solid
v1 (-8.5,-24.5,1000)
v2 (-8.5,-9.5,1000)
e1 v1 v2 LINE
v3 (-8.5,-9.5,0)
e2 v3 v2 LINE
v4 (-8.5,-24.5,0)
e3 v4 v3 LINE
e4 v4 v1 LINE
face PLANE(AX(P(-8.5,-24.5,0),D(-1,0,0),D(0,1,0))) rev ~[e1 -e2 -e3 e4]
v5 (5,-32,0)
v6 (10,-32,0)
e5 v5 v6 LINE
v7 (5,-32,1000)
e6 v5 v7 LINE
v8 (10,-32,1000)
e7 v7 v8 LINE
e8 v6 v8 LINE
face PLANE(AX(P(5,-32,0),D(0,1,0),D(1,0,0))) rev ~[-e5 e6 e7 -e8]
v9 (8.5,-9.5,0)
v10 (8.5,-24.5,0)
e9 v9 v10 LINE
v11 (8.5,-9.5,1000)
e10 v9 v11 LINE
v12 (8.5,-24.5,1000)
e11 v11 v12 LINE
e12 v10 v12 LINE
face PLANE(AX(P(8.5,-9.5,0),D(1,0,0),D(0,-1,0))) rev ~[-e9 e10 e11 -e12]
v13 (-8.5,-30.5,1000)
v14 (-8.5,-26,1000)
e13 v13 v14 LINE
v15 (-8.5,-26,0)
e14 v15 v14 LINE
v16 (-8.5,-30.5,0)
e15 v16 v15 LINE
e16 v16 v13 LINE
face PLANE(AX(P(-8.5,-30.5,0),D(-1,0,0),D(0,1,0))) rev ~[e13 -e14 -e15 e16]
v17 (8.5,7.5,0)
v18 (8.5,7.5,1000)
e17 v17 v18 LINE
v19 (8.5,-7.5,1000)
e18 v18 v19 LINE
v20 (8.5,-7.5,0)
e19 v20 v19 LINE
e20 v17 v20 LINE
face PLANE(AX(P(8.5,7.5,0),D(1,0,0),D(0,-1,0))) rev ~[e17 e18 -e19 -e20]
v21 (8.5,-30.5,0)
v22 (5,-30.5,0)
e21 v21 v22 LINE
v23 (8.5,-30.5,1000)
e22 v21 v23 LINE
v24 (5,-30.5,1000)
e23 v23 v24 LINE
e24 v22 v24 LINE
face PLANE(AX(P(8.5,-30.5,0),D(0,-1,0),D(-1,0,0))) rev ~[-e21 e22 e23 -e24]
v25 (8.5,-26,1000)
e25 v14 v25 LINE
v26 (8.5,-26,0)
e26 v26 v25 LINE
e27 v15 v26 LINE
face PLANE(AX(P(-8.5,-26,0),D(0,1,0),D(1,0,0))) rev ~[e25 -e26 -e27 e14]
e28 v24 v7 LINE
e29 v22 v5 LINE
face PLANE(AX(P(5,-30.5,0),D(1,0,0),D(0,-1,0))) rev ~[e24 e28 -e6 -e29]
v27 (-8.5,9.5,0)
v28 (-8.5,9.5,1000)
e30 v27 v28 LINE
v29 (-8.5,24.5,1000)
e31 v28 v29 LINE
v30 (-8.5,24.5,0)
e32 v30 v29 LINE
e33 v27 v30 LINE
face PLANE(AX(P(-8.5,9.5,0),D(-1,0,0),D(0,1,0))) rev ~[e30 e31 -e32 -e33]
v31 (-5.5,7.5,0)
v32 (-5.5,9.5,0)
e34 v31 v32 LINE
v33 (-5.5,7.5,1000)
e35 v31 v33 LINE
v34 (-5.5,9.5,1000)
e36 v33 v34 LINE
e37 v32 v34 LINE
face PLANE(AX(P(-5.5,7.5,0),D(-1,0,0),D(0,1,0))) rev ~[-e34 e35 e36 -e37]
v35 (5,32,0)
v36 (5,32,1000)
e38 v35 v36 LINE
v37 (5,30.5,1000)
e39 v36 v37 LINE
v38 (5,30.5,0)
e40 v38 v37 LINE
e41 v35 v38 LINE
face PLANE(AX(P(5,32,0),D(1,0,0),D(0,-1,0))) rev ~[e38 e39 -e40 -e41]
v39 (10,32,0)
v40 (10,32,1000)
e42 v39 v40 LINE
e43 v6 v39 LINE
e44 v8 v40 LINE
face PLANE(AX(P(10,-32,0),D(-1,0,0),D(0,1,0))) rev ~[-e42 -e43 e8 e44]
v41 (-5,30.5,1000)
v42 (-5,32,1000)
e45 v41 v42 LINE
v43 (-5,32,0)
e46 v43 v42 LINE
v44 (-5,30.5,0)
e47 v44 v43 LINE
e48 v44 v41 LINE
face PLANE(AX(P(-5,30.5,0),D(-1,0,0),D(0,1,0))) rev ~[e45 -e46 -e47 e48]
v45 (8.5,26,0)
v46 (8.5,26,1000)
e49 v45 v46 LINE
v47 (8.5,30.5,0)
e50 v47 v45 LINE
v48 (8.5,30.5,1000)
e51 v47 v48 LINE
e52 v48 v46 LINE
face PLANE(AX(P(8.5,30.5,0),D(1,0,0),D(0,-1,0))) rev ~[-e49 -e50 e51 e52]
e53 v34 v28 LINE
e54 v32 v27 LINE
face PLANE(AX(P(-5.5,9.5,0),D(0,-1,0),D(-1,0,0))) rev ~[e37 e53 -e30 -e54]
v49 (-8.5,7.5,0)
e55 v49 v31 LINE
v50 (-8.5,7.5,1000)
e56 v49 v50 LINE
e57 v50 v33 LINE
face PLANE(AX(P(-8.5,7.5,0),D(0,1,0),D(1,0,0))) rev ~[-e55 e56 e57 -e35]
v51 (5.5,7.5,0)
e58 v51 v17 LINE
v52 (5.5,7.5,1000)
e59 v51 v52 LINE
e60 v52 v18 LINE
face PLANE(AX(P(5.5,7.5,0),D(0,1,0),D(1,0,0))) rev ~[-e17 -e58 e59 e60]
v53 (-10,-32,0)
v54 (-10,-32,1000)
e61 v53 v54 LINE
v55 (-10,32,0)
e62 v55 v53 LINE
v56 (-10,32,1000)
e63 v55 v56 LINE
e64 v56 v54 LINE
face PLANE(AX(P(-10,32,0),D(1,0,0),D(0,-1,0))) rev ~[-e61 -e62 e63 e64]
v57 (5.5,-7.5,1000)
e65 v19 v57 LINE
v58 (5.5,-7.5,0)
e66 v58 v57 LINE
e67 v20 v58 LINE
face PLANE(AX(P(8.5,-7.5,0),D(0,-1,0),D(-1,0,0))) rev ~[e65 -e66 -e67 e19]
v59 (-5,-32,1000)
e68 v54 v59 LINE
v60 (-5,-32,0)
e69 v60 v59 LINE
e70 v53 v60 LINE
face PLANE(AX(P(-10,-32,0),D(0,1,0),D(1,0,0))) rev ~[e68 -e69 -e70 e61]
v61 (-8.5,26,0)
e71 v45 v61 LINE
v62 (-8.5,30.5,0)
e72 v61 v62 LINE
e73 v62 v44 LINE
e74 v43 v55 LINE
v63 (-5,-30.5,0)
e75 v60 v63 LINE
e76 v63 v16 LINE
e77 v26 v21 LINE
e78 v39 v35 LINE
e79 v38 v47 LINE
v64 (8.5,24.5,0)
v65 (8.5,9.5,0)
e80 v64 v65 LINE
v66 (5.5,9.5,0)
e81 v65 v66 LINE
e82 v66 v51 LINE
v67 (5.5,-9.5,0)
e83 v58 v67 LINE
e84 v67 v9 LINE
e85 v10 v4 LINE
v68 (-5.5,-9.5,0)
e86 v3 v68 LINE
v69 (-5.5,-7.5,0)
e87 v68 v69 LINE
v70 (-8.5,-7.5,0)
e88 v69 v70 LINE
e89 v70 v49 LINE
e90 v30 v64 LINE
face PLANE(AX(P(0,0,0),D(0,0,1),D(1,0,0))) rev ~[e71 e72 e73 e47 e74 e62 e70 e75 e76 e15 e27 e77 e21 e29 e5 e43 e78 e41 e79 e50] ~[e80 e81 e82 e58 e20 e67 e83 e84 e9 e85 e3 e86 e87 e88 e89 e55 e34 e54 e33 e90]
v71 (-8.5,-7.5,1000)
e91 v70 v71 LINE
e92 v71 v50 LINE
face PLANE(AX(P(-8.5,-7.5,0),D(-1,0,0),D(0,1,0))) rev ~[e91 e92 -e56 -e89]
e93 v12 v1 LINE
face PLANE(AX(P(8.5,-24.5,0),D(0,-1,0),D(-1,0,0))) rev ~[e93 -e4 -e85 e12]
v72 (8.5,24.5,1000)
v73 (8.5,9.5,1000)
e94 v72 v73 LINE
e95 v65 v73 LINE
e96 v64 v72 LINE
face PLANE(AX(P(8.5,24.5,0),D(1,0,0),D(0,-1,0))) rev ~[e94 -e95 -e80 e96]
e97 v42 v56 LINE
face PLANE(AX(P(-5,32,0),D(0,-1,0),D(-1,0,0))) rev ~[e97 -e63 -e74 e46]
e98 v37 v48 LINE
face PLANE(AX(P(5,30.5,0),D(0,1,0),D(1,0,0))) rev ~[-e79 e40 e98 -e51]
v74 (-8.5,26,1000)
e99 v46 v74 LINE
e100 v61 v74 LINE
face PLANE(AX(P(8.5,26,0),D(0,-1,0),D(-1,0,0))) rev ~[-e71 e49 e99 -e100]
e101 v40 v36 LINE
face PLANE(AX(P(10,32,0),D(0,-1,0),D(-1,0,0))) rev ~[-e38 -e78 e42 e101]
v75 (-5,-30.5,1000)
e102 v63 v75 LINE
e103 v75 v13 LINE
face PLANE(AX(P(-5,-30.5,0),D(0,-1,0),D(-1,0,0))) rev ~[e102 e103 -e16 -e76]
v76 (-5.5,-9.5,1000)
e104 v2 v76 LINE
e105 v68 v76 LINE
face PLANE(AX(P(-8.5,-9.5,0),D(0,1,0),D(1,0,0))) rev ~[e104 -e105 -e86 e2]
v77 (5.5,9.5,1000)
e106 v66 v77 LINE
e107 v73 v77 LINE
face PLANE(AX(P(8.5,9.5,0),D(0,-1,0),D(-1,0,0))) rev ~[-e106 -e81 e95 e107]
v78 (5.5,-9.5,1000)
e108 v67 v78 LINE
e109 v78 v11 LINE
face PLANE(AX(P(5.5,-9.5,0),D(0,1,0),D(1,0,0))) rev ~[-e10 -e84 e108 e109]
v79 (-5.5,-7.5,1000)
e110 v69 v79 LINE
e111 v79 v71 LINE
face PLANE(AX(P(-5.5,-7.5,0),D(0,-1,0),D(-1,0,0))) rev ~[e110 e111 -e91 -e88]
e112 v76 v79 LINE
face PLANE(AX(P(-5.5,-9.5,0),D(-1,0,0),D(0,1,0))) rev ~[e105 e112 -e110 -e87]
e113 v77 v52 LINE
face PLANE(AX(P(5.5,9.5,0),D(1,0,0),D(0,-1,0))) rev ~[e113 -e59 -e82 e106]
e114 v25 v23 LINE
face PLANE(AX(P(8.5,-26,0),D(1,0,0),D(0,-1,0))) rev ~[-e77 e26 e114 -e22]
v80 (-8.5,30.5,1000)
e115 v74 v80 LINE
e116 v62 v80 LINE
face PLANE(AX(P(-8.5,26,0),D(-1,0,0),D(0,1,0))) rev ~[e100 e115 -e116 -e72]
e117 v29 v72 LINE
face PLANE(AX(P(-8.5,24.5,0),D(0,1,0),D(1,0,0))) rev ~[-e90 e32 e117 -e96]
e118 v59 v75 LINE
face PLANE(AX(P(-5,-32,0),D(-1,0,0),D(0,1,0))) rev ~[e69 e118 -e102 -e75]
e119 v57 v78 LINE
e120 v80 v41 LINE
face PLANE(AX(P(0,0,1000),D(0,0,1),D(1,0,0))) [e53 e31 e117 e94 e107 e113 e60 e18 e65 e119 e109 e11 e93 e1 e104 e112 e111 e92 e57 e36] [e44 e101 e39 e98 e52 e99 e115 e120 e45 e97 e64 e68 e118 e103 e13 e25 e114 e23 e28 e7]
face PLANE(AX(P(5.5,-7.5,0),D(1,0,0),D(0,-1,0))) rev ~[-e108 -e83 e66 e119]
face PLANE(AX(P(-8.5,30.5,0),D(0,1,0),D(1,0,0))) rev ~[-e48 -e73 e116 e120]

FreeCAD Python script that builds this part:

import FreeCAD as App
import Part
import Sketcher
Q = App.Units.Quantity

doc = App.newDocument("Part")
body = doc.addObject("PartDesign::Body", "Body")

sketch1 = body.newObject("Sketcher::SketchObject", "Sketch")
sketch1.AttachmentSupport = (doc.getObject("XY_Plane"), [""])
sketch1.MapMode = "FlatFace"
sketch1.addGeometry([
    Part.LineSegment(App.Vector(-5, 30.5, 0), App.Vector(-5, 32, 0)),
    Part.LineSegment(App.Vector(-5, 32, 0), App.Vector(-10, 32, 0)),
    Part.LineSegment(App.Vector(-10, 32, 0), App.Vector(-10, -32, 0)),
    Part.LineSegment(App.Vector(-10, -32, 0), App.Vector(-5, -32, 0)),
    Part.LineSegment(App.Vector(-5, -32, 0), App.Vector(-5, -30.5, 0)),
    Part.LineSegment(App.Vector(-5, -30.5, 0), App.Vector(-8.5, -30.5, 0)),
    Part.LineSegment(App.Vector(-8.5, -30.5, 0), App.Vector(-8.5, -26, 0)),
    Part.LineSegment(App.Vector(-8.5, -26, 0), App.Vector(8.5, -26, 0)),
    Part.LineSegment(App.Vector(8.5, -26, 0), App.Vector(8.5, -30.5, 0)),
    Part.LineSegment(App.Vector(8.5, -30.5, 0), App.Vector(5, -30.5, 0)),
    Part.LineSegment(App.Vector(5, -30.5, 0), App.Vector(5, -32, 0)),
    Part.LineSegment(App.Vector(5, -32, 0), App.Vector(10, -32, 0)),
    Part.LineSegment(App.Vector(10, -32, 0), App.Vector(10, 32, 0)),
    Part.LineSegment(App.Vector(10, 32, 0), App.Vector(5, 32, 0)),
    Part.LineSegment(App.Vector(5, 32, 0), App.Vector(5, 30.5, 0)),
    Part.LineSegment(App.Vector(5, 30.5, 0), App.Vector(8.5, 30.5, 0)),
    Part.LineSegment(App.Vector(8.5, 30.5, 0), App.Vector(8.5, 26, 0)),
    Part.LineSegment(App.Vector(8.5, 26, 0), App.Vector(-8.5, 26, 0)),
    Part.LineSegment(App.Vector(-8.5, 26, 0), App.Vector(-8.5, 30.5, 0)),
    Part.LineSegment(App.Vector(-8.5, 30.5, 0), App.Vector(-5, 30.5, 0)),
    Part.LineSegment(App.Vector(-5.5, 9.5, 0), App.Vector(-8.5, 9.5, 0)),
    Part.LineSegment(App.Vector(-8.5, 9.5, 0), App.Vector(-8.5, 24.5, 0)),
    Part.LineSegment(App.Vector(-8.5, 24.5, 0), App.Vector(8.5, 24.5, 0)),
    Part.LineSegment(App.Vector(8.5, 24.5, 0), App.Vector(8.5, 9.5, 0)),
    Part.LineSegment(App.Vector(8.5, 9.5, 0), App.Vector(5.5, 9.5, 0)),
    Part.LineSegment(App.Vector(5.5, 9.5, 0), App.Vector(5.5, 7.5, 0)),
    Part.LineSegment(App.Vector(5.5, 7.5, 0), App.Vector(8.5, 7.5, 0)),
    Part.LineSegment(App.Vector(8.5, 7.5, 0), App.Vector(8.5, -7.5, 0)),
    Part.LineSegment(App.Vector(8.5, -7.5, 0), App.Vector(5.5, -7.5, 0)),
    Part.LineSegment(App.Vector(5.5, -7.5, 0), App.Vector(5.5, -9.5, 0)),
    Part.LineSegment(App.Vector(5.5, -9.5, 0), App.Vector(8.5, -9.5, 0)),
    Part.LineSegment(App.Vector(8.5, -9.5, 0), App.Vector(8.5, -24.5, 0)),
    Part.LineSegment(App.Vector(8.5, -24.5, 0), App.Vector(-8.5, -24.5, 0)),
    Part.LineSegment(App.Vector(-8.5, -24.5, 0), App.Vector(-8.5, -9.5, 0)),
    Part.LineSegment(App.Vector(-8.5, -9.5, 0), App.Vector(-5.5, -9.5, 0)),
    Part.LineSegment(App.Vector(-5.5, -9.5, 0), App.Vector(-5.5, -7.5, 0)),
    Part.LineSegment(App.Vector(-5.5, -7.5, 0), App.Vector(-8.5, -7.5, 0)),
    Part.LineSegment(App.Vector(-8.5, -7.5, 0), App.Vector(-8.5, 7.5, 0)),
    Part.LineSegment(App.Vector(-8.5, 7.5, 0), App.Vector(-5.5, 7.5, 0)),
    Part.LineSegment(App.Vector(-5.5, 7.5, 0), App.Vector(-5.5, 9.5, 0)),
], False)
sketch1.addConstraint([
    Sketcher.Constraint("Coincident", 0, 2, 1, 1),
    Sketcher.Constraint("Coincident", 1, 2, 2, 1),
    Sketcher.Constraint("Coincident", 2, 2, 3, 1),
    Sketcher.Constraint("Coincident", 3, 2, 4, 1),
    Sketcher.Constraint("Coincident", 4, 2, 5, 1),
    Sketcher.Constraint("Coincident", 5, 2, 6, 1),
    Sketcher.Constraint("Coincident", 6, 2, 7, 1),
    Sketcher.Constraint("Coincident", 7, 2, 8, 1),
    Sketcher.Constraint("Coincident", 8, 2, 9, 1),
    Sketcher.Constraint("Coincident", 9, 2, 10, 1),
    Sketcher.Constraint("Coincident", 10, 2, 11, 1),
    Sketcher.Constraint("Coincident", 11, 2, 12, 1),
    Sketcher.Constraint("Coincident", 12, 2, 13, 1),
    Sketcher.Constraint("Coincident", 13, 2, 14, 1),
    Sketcher.Constraint("Coincident", 14, 2, 15, 1),
    Sketcher.Constraint("Coincident", 15, 2, 16, 1),
    Sketcher.Constraint("Coincident", 16, 2, 17, 1),
    Sketcher.Constraint("Coincident", 17, 2, 18, 1),
    Sketcher.Constraint("Coincident", 18, 2, 19, 1),
    Sketcher.Constraint("Coincident", 19, 2, 0, 1),
    Sketcher.Constraint("Coincident", 20, 2, 21, 1),
    Sketcher.Constraint("Coincident", 21, 2, 22, 1),
    Sketcher.Constraint("Coincident", 22, 2, 23, 1),
    Sketcher.Constraint("Coincident", 23, 2, 24, 1),
    Sketcher.Constraint("Coincident", 24, 2, 25, 1),
    Sketcher.Constraint("Coincident", 25, 2, 26, 1),
    Sketcher.Constraint("Coincident", 26, 2, 27, 1),
    Sketcher.Constraint("Coincident", 27, 2, 28, 1),
    Sketcher.Constraint("Coincident", 28, 2, 29, 1),
    Sketcher.Constraint("Coincident", 29, 2, 30, 1),
    Sketcher.Constraint("Coincident", 30, 2, 31, 1),
    Sketcher.Constraint("Coincident", 31, 2, 32, 1),
    Sketcher.Constraint("Coincident", 32, 2, 33, 1),
    Sketcher.Constraint("Coincident", 33, 2, 34, 1),
    Sketcher.Constraint("Coincident", 34, 2, 35, 1),
    Sketcher.Constraint("Coincident", 35, 2, 36, 1),
    Sketcher.Constraint("Coincident", 36, 2, 37, 1),
    Sketcher.Constraint("Coincident", 37, 2, 38, 1),
    Sketcher.Constraint("Coincident", 38, 2, 39, 1),
    Sketcher.Constraint("Coincident", 39, 2, 20, 1),
    Sketcher.Constraint("Vertical", 0),
    Sketcher.Constraint("Horizontal", 1),
    Sketcher.Constraint("Vertical", 2),
    Sketcher.Constraint("Horizontal", 3),
    Sketcher.Constraint("Vertical", 4),
    Sketcher.Constraint("Horizontal", 5),
    Sketcher.Constraint("Vertical", 6),
    Sketcher.Constraint("Horizontal", 7),
    Sketcher.Constraint("Vertical", 8),
    Sketcher.Constraint("Horizontal", 9),
    Sketcher.Constraint("Vertical", 10),
    Sketcher.Constraint("Horizontal", 11),
    Sketcher.Constraint("Vertical", 12),
    Sketcher.Constraint("Horizontal", 13),
    Sketcher.Constraint("Vertical", 14),
    Sketcher.Constraint("Horizontal", 15),
    Sketcher.Constraint("Vertical", 16),
    Sketcher.Constraint("Horizontal", 17),
    Sketcher.Constraint("Vertical", 18),
    Sketcher.Constraint("Horizontal", 19),
    Sketcher.Constraint("Horizontal", 20),
    Sketcher.Constraint("Vertical", 21),
    Sketcher.Constraint("Horizontal", 22),
    Sketcher.Constraint("Vertical", 23),
    Sketcher.Constraint("Horizontal", 24),
    Sketcher.Constraint("Vertical", 25),
    Sketcher.Constraint("Horizontal", 26),
    Sketcher.Constraint("Vertical", 27),
    Sketcher.Constraint("Horizontal", 28),
    Sketcher.Constraint("Vertical", 29),
    Sketcher.Constraint("Horizontal", 30),
    Sketcher.Constraint("Vertical", 31),
    Sketcher.Constraint("Horizontal", 32),
    Sketcher.Constraint("Vertical", 33),
    Sketcher.Constraint("Horizontal", 34),
    Sketcher.Constraint("Vertical", 35),
    Sketcher.Constraint("Horizontal", 36),
    Sketcher.Constraint("Vertical", 37),
    Sketcher.Constraint("Horizontal", 38),
    Sketcher.Constraint("Vertical", 39),
    Sketcher.Constraint("Symmetric", 0, 2, 10, 2, -1, 1),
    Sketcher.Constraint("Symmetric", 2, 2, 12, 2, -1, 1),
    Sketcher.Constraint("Symmetric", 4, 2, 14, 2, -1, 1),
    Sketcher.Constraint("Symmetric", 6, 2, 16, 2, -1, 1),
    Sketcher.Constraint("Symmetric", 8, 2, 18, 2, -1, 1),
    Sketcher.Constraint("Symmetric", 20, 2, 30, 2, -1, 1),
    Sketcher.Constraint("Symmetric", 22, 2, 32, 2, -1, 1),
    Sketcher.Constraint("Symmetric", 24, 2, 34, 2, -1, 1),
    Sketcher.Constraint("Symmetric", 26, 2, 36, 2, -1, 1),
    Sketcher.Constraint("Symmetric", 28, 2, 38, 2, -1, 1),
    Sketcher.Constraint("Symmetric", 5, 2, 8, 2, -2),
    Sketcher.Constraint("Symmetric", 3, 2, 10, 2, -2),
    Sketcher.Constraint("Symmetric", 20, 2, 23, 2, -2),
    Sketcher.Constraint("Symmetric", 28, 2, 35, 2, -2),
    Sketcher.Constraint("Vertical", 18, 2, 20, 2),
    Sketcher.Constraint("Vertical", 23, 2, 26, 2),
    Sketcher.Constraint("Equal", 23, 27),
    Sketcher.Constraint("DistanceX", 1, 2, 1, 1, Q("5 mm")),
    Sketcher.Constraint("DistanceX", 7, 1, 7, 2, Q("17 mm")),
    Sketcher.Constraint("DistanceX", 20, 2, 20, 1, Q("3 mm")),
    Sketcher.Constraint("DistanceY", 2, 2, 2, 1, Q("64 mm")),
    Sketcher.Constraint("DistanceY", 21, 1, 21, 2, Q("15 mm")),
    Sketcher.Constraint("DistanceY", 25, 2, 25, 1, Q("2 mm")),
    Sketcher.Constraint("DistanceX", 5, 2, 5, 1, Q("3.5 mm")),
    Sketcher.Constraint("DistanceY", 0, 1, 0, 2, Q("1.5 mm")),
    Sketcher.Constraint("DistanceY", 6, 1, 6, 2, Q("4.5 mm")),
])
pad1 = body.newObject("PartDesign::Pad", "Pad")
pad1.Profile = sketch1
pad1.Length = 1000

doc.recompute()
